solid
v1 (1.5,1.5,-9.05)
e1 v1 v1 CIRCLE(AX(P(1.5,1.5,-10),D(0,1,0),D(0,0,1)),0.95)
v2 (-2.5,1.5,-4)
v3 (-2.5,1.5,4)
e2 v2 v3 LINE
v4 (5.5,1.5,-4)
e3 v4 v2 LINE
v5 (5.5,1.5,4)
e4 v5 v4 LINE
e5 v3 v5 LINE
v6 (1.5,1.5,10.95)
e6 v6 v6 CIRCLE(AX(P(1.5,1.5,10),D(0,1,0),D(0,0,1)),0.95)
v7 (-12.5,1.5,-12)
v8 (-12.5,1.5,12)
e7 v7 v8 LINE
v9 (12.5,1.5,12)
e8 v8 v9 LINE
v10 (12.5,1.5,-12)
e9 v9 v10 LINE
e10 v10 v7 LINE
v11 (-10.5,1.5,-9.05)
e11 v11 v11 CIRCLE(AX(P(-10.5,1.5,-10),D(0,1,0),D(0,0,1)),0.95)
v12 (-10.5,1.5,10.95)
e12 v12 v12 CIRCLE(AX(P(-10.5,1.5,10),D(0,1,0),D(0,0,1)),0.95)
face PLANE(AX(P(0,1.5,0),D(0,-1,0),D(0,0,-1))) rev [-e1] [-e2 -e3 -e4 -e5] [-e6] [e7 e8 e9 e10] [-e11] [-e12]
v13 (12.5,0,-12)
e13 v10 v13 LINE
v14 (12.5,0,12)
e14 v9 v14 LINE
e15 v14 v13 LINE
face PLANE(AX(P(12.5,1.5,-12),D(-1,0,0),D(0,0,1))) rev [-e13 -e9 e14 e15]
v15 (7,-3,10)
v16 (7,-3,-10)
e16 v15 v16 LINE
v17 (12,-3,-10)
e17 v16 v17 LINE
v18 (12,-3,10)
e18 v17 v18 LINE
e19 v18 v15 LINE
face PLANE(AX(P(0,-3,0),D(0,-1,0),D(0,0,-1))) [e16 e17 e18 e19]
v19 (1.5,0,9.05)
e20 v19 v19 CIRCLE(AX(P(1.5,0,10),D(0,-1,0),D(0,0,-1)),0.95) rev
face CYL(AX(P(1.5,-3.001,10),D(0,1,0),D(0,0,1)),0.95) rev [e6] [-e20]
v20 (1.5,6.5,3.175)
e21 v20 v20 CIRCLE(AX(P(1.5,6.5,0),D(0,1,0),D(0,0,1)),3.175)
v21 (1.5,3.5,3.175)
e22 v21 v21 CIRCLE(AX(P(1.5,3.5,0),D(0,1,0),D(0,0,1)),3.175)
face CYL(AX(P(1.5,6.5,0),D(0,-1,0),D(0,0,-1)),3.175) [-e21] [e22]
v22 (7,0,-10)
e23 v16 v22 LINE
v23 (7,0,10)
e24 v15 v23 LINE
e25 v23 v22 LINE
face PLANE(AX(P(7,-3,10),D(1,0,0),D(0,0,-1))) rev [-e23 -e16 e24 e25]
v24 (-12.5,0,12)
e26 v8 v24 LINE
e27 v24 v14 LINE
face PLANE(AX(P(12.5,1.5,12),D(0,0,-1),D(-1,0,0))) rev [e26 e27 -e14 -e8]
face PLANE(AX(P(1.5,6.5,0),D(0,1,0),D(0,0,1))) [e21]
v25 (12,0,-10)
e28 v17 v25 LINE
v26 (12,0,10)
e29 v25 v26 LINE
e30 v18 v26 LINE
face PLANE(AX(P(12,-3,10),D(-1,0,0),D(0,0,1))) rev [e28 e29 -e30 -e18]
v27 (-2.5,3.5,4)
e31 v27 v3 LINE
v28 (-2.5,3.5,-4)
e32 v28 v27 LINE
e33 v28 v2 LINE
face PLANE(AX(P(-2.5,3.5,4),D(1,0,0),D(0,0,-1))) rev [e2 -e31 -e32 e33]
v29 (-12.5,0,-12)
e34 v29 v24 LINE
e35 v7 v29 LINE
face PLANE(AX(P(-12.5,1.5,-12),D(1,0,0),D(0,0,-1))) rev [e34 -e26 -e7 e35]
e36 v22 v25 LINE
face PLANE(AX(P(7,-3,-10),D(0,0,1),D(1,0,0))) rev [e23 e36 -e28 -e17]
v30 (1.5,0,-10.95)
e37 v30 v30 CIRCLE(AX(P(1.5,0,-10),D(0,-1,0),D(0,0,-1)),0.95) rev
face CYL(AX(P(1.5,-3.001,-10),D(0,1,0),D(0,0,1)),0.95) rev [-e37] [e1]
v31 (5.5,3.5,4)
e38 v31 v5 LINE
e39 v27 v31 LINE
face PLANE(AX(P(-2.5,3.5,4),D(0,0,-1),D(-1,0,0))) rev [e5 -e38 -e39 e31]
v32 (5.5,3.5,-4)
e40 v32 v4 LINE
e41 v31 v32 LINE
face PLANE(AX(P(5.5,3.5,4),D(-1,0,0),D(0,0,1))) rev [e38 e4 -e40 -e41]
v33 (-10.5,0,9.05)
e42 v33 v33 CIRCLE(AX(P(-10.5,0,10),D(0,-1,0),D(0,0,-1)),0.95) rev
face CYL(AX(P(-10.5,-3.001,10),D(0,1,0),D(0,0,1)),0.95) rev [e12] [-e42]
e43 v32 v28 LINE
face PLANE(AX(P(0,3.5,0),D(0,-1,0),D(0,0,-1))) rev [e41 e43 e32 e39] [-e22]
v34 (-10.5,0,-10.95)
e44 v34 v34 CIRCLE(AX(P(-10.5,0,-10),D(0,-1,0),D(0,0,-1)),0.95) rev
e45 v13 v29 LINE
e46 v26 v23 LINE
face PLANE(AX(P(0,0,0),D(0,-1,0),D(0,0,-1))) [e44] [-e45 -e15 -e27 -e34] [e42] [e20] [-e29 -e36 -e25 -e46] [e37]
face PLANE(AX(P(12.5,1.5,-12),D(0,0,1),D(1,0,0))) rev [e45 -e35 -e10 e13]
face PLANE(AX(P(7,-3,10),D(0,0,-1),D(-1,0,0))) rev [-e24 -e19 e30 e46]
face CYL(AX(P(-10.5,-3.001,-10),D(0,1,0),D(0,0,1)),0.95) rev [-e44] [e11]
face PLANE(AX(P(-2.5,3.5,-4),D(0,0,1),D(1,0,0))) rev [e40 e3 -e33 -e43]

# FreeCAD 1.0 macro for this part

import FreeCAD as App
import Part
import Sketcher

V = App.Vector


def add_polygon(sketch, points):
    """Adds a closed chain of lines whose ends are joined by coincident constraints."""
    first, n = sketch.GeometryCount, len(points)
    for a, b in zip(points, points[1:] + points[:1]):
        sketch.addGeometry(Part.LineSegment(App.Vector(*a, 0), App.Vector(*b, 0)), False)
    for i in range(n):
        sketch.addConstraint(Sketcher.Constraint("Coincident", first + i, 2, first + (i + 1) % n, 1))

doc = App.newDocument("Part")
body = doc.addObject("PartDesign::Body", "Body")

# Sketch on XZ plane
sketch1 = doc.addObject("Sketcher::SketchObject", "Sketch")
body.addObject(sketch1)
sketch1.AttachmentSupport = (doc.XZ_Plane, [""])
sketch1.MapMode = "FlatFace"
add_polygon(sketch1, [(-12, -12), (-12, 12), (12, 12), (12, -12)])  # lines 0-3
sketch1.addConstraint(Sketcher.Constraint("Vertical", 0))
sketch1.addConstraint(Sketcher.Constraint("Horizontal", 1))
sketch1.addConstraint(Sketcher.Constraint("Vertical", 2))
sketch1.addConstraint(Sketcher.Constraint("Horizontal", 3))
sketch1.addConstraint(Sketcher.Constraint("Symmetric", 0, 2, 2, 2, -1, 1))
sketch1.addConstraint(Sketcher.Constraint("DistanceX", 1, 1, 1, 2, 25.0))
sketch1.addConstraint(Sketcher.Constraint("DistanceY", 0, 1, 0, 2, 24.0))
pad1 = doc.addObject("PartDesign::Pad", "Pad")
body.addObject(pad1)
pad1.Profile = sketch1
pad1.Length = 1.5
pad1.Reversed = True

# Sketch on XZ plane
sketch2 = doc.addObject("Sketcher::SketchObject", "Sketch001")
body.addObject(sketch2)
sketch2.AttachmentSupport = (doc.XZ_Plane, [""])
sketch2.MapMode = "FlatFace"
sketch2.AttachmentOffset = App.Placement(V(0, 0, -1.5), App.Rotation())
add_polygon(sketch2, [(-2, -4), (-2, 4), (6, 4), (6, -4)])  # lines 0-3
sketch2.addConstraint(Sketcher.Constraint("Vertical", 0))
sketch2.addConstraint(Sketcher.Constraint("Horizontal", 1))
sketch2.addConstraint(Sketcher.Constraint("Vertical", 2))
sketch2.addConstraint(Sketcher.Constraint("Horizontal", 3))
sketch2.addConstraint(Sketcher.Constraint("Equal", 3, 0))
sketch2.addConstraint(Sketcher.Constraint("DistanceX", 1, 1, 1, 2, 8.0))
sketch2.addConstraint(Sketcher.Constraint("DistanceY", -1, 1, 0, 2, 4.0))
sketch2.addConstraint(Sketcher.Constraint("DistanceX", 0, 2, -1, 1, 2.5))
pad2 = doc.addObject("PartDesign::Pad", "Pad001")
body.addObject(pad2)
pad2.Profile = sketch2
pad2.Length = 2
pad2.Reversed = True

# Sketch on XZ plane
sketch3 = doc.addObject("Sketcher::SketchObject", "Sketch002")
body.addObject(sketch3)
sketch3.AttachmentSupport = (doc.XZ_Plane, [""])
sketch3.MapMode = "FlatFace"
sketch3.AttachmentOffset = App.Placement(V(0, 0, -3.5), App.Rotation())
sketch3.addGeometry(Part.Circle(V(1.5, 0, 0), V(0, 0, 1), 3.2), False)
sketch3.addConstraint(Sketcher.Constraint("PointOnObject", 0, 3, -1))
sketch3.addConstraint(Sketcher.Constraint("Diameter", 0, 6.35))
sketch3.addConstraint(Sketcher.Constraint("DistanceX", -1, 1, 0, 3, 1.5))
pad3 = doc.addObject("PartDesign::Pad", "Pad002")
body.addObject(pad3)
pad3.Profile = sketch3
pad3.Length = 3
pad3.Reversed = True

# Sketch on XZ plane
sketch4 = doc.addObject("Sketcher::SketchObject", "Sketch003")
body.addObject(sketch4)
sketch4.AttachmentSupport = (doc.XZ_Plane, [""])
sketch4.MapMode = "FlatFace"
add_polygon(sketch4, [(7, 10), (7, -10), (12, -10), (12, 10)])  # lines 0-3
sketch4.addConstraint(Sketcher.Constraint("Vertical", 0))
sketch4.addConstraint(Sketcher.Constraint("Horizontal", 1))
sketch4.addConstraint(Sketcher.Constraint("Vertical", 2))
sketch4.addConstraint(Sketcher.Constraint("Horizontal", 3))
sketch4.addConstraint(Sketcher.Constraint("DistanceX", 1, 1, 1, 2, 5.0))
sketch4.addConstraint(Sketcher.Constraint("DistanceY", 0, 2, 0, 1, 20.0))
sketch4.addConstraint(Sketcher.Constraint("DistanceX", -1, 1, 0, 2, 7.0))
sketch4.addConstraint(Sketcher.Constraint("DistanceY", 0, 2, -1, 1, 10.0))
pad4 = doc.addObject("PartDesign::Pad", "Pad003")
body.addObject(pad4)
pad4.Profile = sketch4
pad4.Length = 3

# Sketch on XZ plane
sketch5 = doc.addObject("Sketcher::SketchObject", "Sketch004")
body.addObject(sketch5)
sketch5.AttachmentSupport = (doc.XZ_Plane, [""])
sketch5.MapMode = "FlatFace"
sketch5.AttachmentOffset = App.Placement(V(0, 0, -1.5), App.Rotation())
sketch5.addGeometry(Part.Circle(V(-10.5, -10, 0), V(0, 0, 1), 0.9), False)
sketch5.addConstraint(Sketcher.Constraint("Diameter", 0, 1.9))
sketch5.addConstraint(Sketcher.Constraint("DistanceY", 0, 3, -1, 1, 10.0))
sketch5.addConstraint(Sketcher.Constraint("DistanceX", 0, 3, -1, 1, 10.5))
pocket1 = doc.addObject("PartDesign::Pocket", "Pocket")
body.addObject(pocket1)
pocket1.Profile = sketch5
pocket1.Type = "UpToFirst"
pocket1.Reversed = True

# Sketch on XZ plane
sketch6 = doc.addObject("Sketcher::SketchObject", "Sketch005")
body.addObject(sketch6)
sketch6.AttachmentSupport = (doc.XZ_Plane, [""])
sketch6.MapMode = "FlatFace"
sketch6.AttachmentOffset = App.Placement(V(0, 0, -1.5), App.Rotation())
sketch6.addGeometry(Part.Circle(V(1.5, -10, 0), V(0, 0, 1), 0.9), False)
sketch6.addConstraint(Sketcher.Constraint("Diameter", 0, 1.9))
sketch6.addConstraint(Sketcher.Constraint("DistanceY", 0, 3, -1, 1, 10.0))
sketch6.addConstraint(Sketcher.Constraint("DistanceX", -1, 1, 0, 3, 1.5))
pocket2 = doc.addObject("PartDesign::Pocket", "Pocket001")
body.addObject(pocket2)
pocket2.Profile = sketch6
pocket2.Type = "UpToFirst"
pocket2.Reversed = True

# Sketch on XZ plane
sketch7 = doc.addObject("Sketcher::SketchObject", "Sketch006")
body.addObject(sketch7)
sketch7.AttachmentSupport = (doc.XZ_Plane, [""])
sketch7.MapMode = "FlatFace"
sketch7.AttachmentOffset = App.Placement(V(0, 0, -1.5), App.Rotation())
sketch7.addGeometry(Part.Circle(V(-10.5, 10, 0), V(0, 0, 1), 0.9), False)
sketch7.addConstraint(Sketcher.Constraint("Diameter", 0, 1.9))
sketch7.addConstraint(Sketcher.Constraint("DistanceY", -1, 1, 0, 3, 10.0))
sketch7.addConstraint(Sketcher.Constraint("DistanceX", 0, 3, -1, 1, 10.5))
pocket3 = doc.addObject("PartDesign::Pocket", "Pocket002")
body.addObject(pocket3)
pocket3.Profile = sketch7
pocket3.Type = "UpToFirst"
pocket3.Reversed = True

# Sketch on XZ plane
sketch8 = doc.addObject("Sketcher::SketchObject", "Sketch007")
body.addObject(sketch8)
sketch8.AttachmentSupport = (doc.XZ_Plane, [""])
sketch8.MapMode = "FlatFace"
sketch8.AttachmentOffset = App.Placement(V(0, 0, -1.5), App.Rotation())
sketch8.addGeometry(Part.Circle(V(1.5, 10, 0), V(0, 0, 1), 0.9), False)
sketch8.addConstraint(Sketcher.Constraint("Diameter", 0, 1.9))
sketch8.addConstraint(Sketcher.Constraint("DistanceY", -1, 1, 0, 3, 10.0))
sketch8.addConstraint(Sketcher.Constraint("DistanceX", -1, 1, 0, 3, 1.5))
pocket4 = doc.addObject("PartDesign::Pocket", "Pocket003")
body.addObject(pocket4)
pocket4.Profile = sketch8
pocket4.Type = "UpToFirst"
pocket4.Reversed = True

doc.recompute()
